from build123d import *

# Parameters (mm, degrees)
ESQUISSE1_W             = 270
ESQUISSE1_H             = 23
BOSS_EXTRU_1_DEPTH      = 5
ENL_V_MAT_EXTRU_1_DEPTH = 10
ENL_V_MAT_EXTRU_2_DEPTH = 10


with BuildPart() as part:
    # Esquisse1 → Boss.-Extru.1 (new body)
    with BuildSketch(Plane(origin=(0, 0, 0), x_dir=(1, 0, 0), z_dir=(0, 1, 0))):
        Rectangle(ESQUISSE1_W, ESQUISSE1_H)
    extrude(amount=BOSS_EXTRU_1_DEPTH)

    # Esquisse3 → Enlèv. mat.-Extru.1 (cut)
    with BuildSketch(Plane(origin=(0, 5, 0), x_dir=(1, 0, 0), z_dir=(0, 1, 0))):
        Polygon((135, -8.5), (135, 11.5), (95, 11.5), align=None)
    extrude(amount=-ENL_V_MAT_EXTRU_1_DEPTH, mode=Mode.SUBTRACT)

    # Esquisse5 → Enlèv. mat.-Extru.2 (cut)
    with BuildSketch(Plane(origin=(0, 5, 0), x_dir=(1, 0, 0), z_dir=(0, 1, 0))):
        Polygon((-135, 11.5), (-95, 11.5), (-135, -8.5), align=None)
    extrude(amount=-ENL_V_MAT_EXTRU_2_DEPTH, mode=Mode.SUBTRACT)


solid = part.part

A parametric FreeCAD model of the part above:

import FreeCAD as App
import Part
import Sketcher

V = App.Vector
Q = App.Units.Quantity

doc = App.newDocument("Part")
body = doc.addObject("PartDesign::Body", "Body")

sketch1 = body.newObject("Sketcher::SketchObject", "Sketch")
sketch1.AttachmentSupport = (doc.getObject("XZ_Plane"), [""])
sketch1.MapMode = "FlatFace"
sketch1.addGeometry([
    Part.LineSegment(V(-135, -12, 0), V(-135, 12, 0)),
    Part.LineSegment(V(-135, 12, 0), V(135, 12, 0)),
    Part.LineSegment(V(135, 12, 0), V(135, -12, 0)),
    Part.LineSegment(V(135, -12, 0), V(-135, -12, 0)),
], False)
sketch1.addConstraint([
    Sketcher.Constraint("Coincident", 0, 2, 1, 1),
    Sketcher.Constraint("Coincident", 1, 2, 2, 1),
    Sketcher.Constraint("Coincident", 2, 2, 3, 1),
    Sketcher.Constraint("Coincident", 3, 2, 0, 1),
    Sketcher.Constraint("Vertical", 0),
    Sketcher.Constraint("Horizontal", 1),
    Sketcher.Constraint("Vertical", 2),
    Sketcher.Constraint("Horizontal", 3),
    Sketcher.Constraint("Symmetric", 0, 2, 2, 2, -1, 1),
    Sketcher.Constraint("DistanceX", 1, 1, 1, 2, Q("270 mm")),
    Sketcher.Constraint("DistanceY", 0, 1, 0, 2, Q("23 mm")),
])
pad1 = body.newObject("PartDesign::Pad", "Pad")
pad1.Profile = sketch1
pad1.Length = 5
pad1.Reversed = True

sketch2 = body.newObject("Sketcher::SketchObject", "Sketch001")
sketch2.AttachmentSupport = (doc.getObject("XZ_Plane"), [""])
sketch2.MapMode = "FlatFace"
sketch2.AttachmentOffset = App.Placement(V(0, 0, -5), App.Rotation())
sketch2.addGeometry([
    Part.LineSegment(V(135, 8, 0), V(135, -12, 0)),
    Part.LineSegment(V(135, -12, 0), V(95, -12, 0)),
    Part.LineSegment(V(95, -12, 0), V(135, 8, 0)),
], False)
sketch2.addConstraint([
    Sketcher.Constraint("Coincident", 0, 2, 1, 1),
    Sketcher.Constraint("Coincident", 1, 2, 2, 1),
    Sketcher.Constraint("Coincident", 2, 2, 0, 1),
    Sketcher.Constraint("Vertical", 0),
    Sketcher.Constraint("Horizontal", 1),
    Sketcher.Constraint("DistanceX", 1, 2, 1, 1, Q("40 mm")),
    Sketcher.Constraint("DistanceY", 0, 2, 0, 1, Q("20 mm")),
    Sketcher.Constraint("DistanceX", -1, 1, 0, 2, Q("135 mm")),
    Sketcher.Constraint("DistanceY", 0, 2, -1, 1, Q("11.5 mm")),
])
pocket1 = body.newObject("PartDesign::Pocket", "Pocket")
pocket1.Profile = sketch2
pocket1.Length = 10
pocket1.Reversed = True

sketch3 = body.newObject("Sketcher::SketchObject", "Sketch002")
sketch3.AttachmentSupport = (doc.getObject("XZ_Plane"), [""])
sketch3.MapMode = "FlatFace"
sketch3.AttachmentOffset = App.Placement(V(0, 0, -5), App.Rotation())
sketch3.addGeometry([
    Part.LineSegment(V(-95, -12, 0), V(-135, -12, 0)),
    Part.LineSegment(V(-135, -12, 0), V(-135, 8, 0)),
    Part.LineSegment(V(-135, 8, 0), V(-95, -12, 0)),
], False)
sketch3.addConstraint([
    Sketcher.Constraint("Coincident", 0, 2, 1, 1),
    Sketcher.Constraint("Coincident", 1, 2, 2, 1),
    Sketcher.Constraint("Coincident", 2, 2, 0, 1),
    Sketcher.Constraint("Horizontal", 0),
    Sketcher.Constraint("Vertical", 1),
    Sketcher.Constraint("DistanceX", 0, 2, 0, 1, Q("40 mm")),
    Sketcher.Constraint("DistanceY", 1, 1, 1, 2, Q("20 mm")),
    Sketcher.Constraint("DistanceX", 0, 2, -1, 1, Q("135 mm")),
    Sketcher.Constraint("DistanceY", 0, 2, -1, 1, Q("11.5 mm")),
])
pocket2 = body.newObject("PartDesign::Pocket", "Pocket001")
pocket2.Profile = sketch3
pocket2.Length = 10
pocket2.Reversed = True

doc.recompute()
